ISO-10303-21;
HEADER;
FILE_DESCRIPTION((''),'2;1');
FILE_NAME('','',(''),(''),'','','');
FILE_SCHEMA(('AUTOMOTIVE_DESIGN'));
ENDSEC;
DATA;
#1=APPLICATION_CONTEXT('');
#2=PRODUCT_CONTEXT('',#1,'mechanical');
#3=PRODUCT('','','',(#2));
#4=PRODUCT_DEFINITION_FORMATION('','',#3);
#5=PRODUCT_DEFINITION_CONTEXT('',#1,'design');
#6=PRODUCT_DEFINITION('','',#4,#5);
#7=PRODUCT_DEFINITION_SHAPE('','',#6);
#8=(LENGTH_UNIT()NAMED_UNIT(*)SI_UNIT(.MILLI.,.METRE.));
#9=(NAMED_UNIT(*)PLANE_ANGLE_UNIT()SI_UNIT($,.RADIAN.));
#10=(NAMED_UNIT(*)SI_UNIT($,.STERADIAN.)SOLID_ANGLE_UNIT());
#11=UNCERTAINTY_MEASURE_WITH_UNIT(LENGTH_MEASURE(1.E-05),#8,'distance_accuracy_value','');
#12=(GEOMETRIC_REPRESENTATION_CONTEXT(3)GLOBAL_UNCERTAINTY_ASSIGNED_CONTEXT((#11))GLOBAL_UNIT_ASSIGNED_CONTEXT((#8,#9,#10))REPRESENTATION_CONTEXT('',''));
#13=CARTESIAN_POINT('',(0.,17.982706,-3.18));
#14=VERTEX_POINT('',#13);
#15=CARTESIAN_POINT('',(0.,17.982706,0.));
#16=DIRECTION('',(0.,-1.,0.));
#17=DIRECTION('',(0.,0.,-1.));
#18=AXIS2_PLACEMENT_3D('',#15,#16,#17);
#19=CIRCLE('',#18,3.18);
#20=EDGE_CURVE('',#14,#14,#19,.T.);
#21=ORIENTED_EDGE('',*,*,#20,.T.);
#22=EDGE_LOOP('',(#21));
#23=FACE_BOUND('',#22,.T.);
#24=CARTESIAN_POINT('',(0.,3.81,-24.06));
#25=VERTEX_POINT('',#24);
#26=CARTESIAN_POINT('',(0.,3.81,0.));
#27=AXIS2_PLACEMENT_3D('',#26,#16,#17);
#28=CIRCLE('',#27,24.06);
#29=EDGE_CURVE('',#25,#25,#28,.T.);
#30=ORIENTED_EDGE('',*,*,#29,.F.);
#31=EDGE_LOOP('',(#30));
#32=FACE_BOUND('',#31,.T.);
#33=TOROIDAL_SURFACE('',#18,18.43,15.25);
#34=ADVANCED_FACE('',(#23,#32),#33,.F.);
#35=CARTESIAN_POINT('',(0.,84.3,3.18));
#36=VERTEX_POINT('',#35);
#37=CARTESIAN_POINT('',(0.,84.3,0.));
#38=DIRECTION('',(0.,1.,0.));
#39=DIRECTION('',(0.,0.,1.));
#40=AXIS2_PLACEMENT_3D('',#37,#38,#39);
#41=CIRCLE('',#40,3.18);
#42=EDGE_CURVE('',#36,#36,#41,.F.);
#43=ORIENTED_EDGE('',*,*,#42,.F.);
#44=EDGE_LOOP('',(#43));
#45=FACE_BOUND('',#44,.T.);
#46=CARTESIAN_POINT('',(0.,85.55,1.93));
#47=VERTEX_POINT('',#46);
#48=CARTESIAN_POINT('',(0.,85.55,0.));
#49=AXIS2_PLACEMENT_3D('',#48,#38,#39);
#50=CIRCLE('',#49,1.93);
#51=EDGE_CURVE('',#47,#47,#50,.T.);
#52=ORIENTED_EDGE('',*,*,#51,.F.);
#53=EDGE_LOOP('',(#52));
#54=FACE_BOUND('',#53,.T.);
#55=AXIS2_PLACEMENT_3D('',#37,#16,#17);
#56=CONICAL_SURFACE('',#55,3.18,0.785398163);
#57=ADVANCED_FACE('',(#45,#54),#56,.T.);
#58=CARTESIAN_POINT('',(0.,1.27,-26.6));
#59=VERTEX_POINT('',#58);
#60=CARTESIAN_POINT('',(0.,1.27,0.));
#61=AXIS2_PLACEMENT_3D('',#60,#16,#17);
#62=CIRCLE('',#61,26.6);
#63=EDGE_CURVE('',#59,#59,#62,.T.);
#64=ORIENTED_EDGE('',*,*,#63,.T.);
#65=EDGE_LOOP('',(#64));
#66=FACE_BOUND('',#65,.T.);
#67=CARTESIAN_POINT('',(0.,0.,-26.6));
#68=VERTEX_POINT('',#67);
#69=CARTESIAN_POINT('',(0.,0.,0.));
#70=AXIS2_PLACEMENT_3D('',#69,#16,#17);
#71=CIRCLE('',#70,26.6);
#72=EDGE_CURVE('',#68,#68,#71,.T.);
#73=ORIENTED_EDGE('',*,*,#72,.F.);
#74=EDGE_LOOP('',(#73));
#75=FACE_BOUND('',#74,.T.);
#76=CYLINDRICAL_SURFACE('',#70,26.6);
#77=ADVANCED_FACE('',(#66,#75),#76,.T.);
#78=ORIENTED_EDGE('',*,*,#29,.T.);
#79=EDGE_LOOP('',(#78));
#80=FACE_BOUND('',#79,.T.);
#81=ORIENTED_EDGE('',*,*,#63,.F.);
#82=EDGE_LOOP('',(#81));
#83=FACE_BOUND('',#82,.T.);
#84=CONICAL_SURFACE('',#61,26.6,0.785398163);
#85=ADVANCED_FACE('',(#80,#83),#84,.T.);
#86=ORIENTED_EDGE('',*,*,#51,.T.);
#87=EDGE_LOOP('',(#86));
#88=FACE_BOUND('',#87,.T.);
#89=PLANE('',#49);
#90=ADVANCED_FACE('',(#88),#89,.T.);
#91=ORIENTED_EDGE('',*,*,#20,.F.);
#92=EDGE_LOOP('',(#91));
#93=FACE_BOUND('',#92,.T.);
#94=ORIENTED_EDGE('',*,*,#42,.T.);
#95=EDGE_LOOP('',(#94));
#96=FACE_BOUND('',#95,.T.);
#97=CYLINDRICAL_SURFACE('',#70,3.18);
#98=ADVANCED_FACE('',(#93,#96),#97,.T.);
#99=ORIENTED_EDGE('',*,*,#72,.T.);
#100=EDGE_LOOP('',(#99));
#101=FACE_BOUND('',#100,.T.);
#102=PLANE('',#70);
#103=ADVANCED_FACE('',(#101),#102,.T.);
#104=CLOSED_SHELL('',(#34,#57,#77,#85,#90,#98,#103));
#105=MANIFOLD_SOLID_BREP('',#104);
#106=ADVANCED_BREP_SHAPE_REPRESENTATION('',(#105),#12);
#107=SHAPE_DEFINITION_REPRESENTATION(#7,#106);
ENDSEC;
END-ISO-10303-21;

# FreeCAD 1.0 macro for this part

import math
import FreeCAD as App
import Part
import Sketcher
Q = App.Units.Quantity


def edges_at(feature, points):
    """Names of the edges that pass closest to the given points."""
    edges = feature.Shape.Edges
    near = lambda p: min(range(len(edges)), key=lambda i: edges[i].distToShape(Part.Vertex(*p))[0])
    return sorted({f"Edge{near(p) + 1}" for p in points})

doc = App.newDocument("Part")
body = doc.addObject("PartDesign::Body", "Body")

# Sketch on XY plane
sketch1 = doc.addObject("Sketcher::SketchObject", "Sketch")
body.addObject(sketch1)
sketch1.AttachmentSupport = (doc.XY_Plane, [""])
sketch1.MapMode = "FlatFace"
sketch1.addGeometry([
    Part.LineSegment(App.Vector(0, 0, 0), App.Vector(26.6, 0, 0)),  # 0
    Part.LineSegment(App.Vector(26.6, 0, 0), App.Vector(26.6, 1.3, 0)),  # 1
    Part.LineSegment(App.Vector(26.6, 1.3, 0), App.Vector(24.1, 3.8, 0)),  # 2
    Part.ArcOfCircle(Part.Circle(App.Vector(18.4, 18, 0), App.Vector(0, 0, 1), 15.2), math.radians(180), math.radians(292)),  # 3
    Part.LineSegment(App.Vector(3.2, 18, 0), App.Vector(3.2, 85.5, 0)),  # 4
    Part.LineSegment(App.Vector(3.2, 85.5, 0), App.Vector(0, 85.5, 0)),  # 5
    Part.LineSegment(App.Vector(0, 85.5, 0), App.Vector(0, 0, 0)),  # 6
], False)
sketch1.addConstraint([
    Sketcher.Constraint("Coincident", 0, 2, 1, 1),
    Sketcher.Constraint("Coincident", 1, 2, 2, 1),
    Sketcher.Constraint("Coincident", 2, 2, 3, 2),
    Sketcher.Constraint("Tangent", 3, 1, 4, 1),
    Sketcher.Constraint("Coincident", 4, 2, 5, 1),
    Sketcher.Constraint("Coincident", 5, 2, 6, 1),
    Sketcher.Constraint("Coincident", 6, 2, 0, 1),
    Sketcher.Constraint("Horizontal", 0),
    Sketcher.Constraint("Vertical", 1),
    Sketcher.Constraint("Vertical", 4),
    Sketcher.Constraint("Horizontal", 5),
    Sketcher.Constraint("Vertical", 6),
    Sketcher.Constraint("Coincident", 6, 2, -1, 1),
    Sketcher.Constraint("Angle", 2, Q("135 deg")),
    Sketcher.Constraint("Radius", 3, 15.25),
    Sketcher.Constraint("DistanceX", 0, 1, 0, 2, 26.6),
    Sketcher.Constraint("DistanceX", 5, 2, 5, 1, 3.18),
    Sketcher.Constraint("DistanceY", 1, 1, 1, 2, 1.27),
    Sketcher.Constraint("DistanceY", 6, 2, 6, 1, 85.55),
    Sketcher.Constraint("DistanceX", -1, 1, 2, 2, 24.06),
])
revolution = doc.addObject("PartDesign::Revolution", "Revolution")
body.addObject(revolution)
revolution.Profile = sketch1
revolution.ReferenceAxis = (sketch1, ["V_Axis"])
revolution.Angle = 360
doc.recompute()

chamfer = doc.addObject("PartDesign::Chamfer", "Chamfer")
body.addObject(chamfer)
chamfer.Base = (revolution, edges_at(revolution, [(0, 85.55, 3.18)]))
chamfer.Size = 1.25

doc.recompute()
